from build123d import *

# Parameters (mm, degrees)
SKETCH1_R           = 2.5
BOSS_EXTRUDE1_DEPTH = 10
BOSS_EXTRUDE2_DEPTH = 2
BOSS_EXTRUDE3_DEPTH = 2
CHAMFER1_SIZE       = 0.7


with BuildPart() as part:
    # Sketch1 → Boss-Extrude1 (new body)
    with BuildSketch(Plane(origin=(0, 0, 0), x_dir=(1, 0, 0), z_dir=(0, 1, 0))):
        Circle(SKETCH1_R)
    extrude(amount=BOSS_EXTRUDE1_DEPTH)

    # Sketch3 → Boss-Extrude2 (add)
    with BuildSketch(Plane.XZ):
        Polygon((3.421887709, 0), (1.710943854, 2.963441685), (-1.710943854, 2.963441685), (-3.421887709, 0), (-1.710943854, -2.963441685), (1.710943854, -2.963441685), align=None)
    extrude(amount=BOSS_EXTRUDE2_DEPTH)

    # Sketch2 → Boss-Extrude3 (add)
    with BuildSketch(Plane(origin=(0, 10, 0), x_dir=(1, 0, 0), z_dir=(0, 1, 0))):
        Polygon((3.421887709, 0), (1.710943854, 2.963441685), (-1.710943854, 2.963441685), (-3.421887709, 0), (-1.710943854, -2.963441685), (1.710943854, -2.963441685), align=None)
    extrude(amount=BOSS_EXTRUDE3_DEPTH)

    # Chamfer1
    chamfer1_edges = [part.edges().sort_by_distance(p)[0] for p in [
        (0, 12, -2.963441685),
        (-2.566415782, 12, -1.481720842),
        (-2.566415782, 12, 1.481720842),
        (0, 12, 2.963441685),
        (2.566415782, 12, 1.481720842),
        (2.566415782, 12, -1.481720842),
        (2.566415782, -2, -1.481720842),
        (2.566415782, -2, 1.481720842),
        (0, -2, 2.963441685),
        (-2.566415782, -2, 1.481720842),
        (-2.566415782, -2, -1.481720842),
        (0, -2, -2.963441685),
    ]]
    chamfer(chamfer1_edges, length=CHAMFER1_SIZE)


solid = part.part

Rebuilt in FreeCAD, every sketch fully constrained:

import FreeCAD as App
import Part
import Sketcher
Q = App.Units.Quantity


def edges_at(feature, points):
    """Names of the edges that pass closest to the given points."""
    edges = feature.Shape.Edges
    near = lambda p: min(range(len(edges)), key=lambda i: edges[i].distToShape(Part.Vertex(*p))[0])
    return sorted({f"Edge{near(p) + 1}" for p in points})

doc = App.newDocument("Part")
params = doc.addObject("Spreadsheet::Sheet", "Params")
for row, (alias, value) in enumerate([
    ("sketch1_diameter", "5 mm"),
    ("pad1_length", "10 mm"),
    ("pad2_length", "2 mm"),
    ("pad3_length", "2 mm"),
    ("chamfer_size", "0.7 mm"),
], start=1):
    params.set(f"A{row}", alias)
    params.set(f"B{row}", "=" + value)
    params.setAlias(f"B{row}", alias)

body = doc.addObject("PartDesign::Body", "Body")

sketch1 = body.newObject("Sketcher::SketchObject", "Sketch")
sketch1.AttachmentSupport = (doc.getObject("XZ_Plane"), [""])
sketch1.MapMode = "FlatFace"
sketch1.addGeometry(Part.Circle(App.Vector(0, 0, 0), App.Vector(0, 0, 1), 2.5), False)
sketch1.addConstraint([
    Sketcher.Constraint("Coincident", 0, 3, -1, 1),
    Sketcher.Constraint("Diameter", 0, 5.0),
])
sketch1.setExpression("Constraints[1]", "Params.sketch1_diameter")
pad1 = body.newObject("PartDesign::Pad", "Pad")
pad1.Profile = sketch1
pad1.setExpression("Length", "Params.pad1_length")
pad1.Reversed = True

sketch2 = body.newObject("Sketcher::SketchObject", "Sketch001")
sketch2.AttachmentSupport = (doc.getObject("XZ_Plane"), [""])
sketch2.MapMode = "FlatFace"
sketch2.addGeometry([
    Part.LineSegment(App.Vector(3.421888, 0, 0), App.Vector(1.710944, 2.963442, 0)),
    Part.LineSegment(App.Vector(1.710944, 2.963442, 0), App.Vector(-1.710944, 2.963442, 0)),
    Part.LineSegment(App.Vector(-1.710944, 2.963442, 0), App.Vector(-3.421888, 0, 0)),
    Part.LineSegment(App.Vector(-3.421888, 0, 0), App.Vector(-1.710944, -2.963442, 0)),
    Part.LineSegment(App.Vector(-1.710944, -2.963442, 0), App.Vector(1.710944, -2.963442, 0)),
    Part.LineSegment(App.Vector(1.710944, -2.963442, 0), App.Vector(3.421888, 0, 0)),
], False)
sketch2.addConstraint([
    Sketcher.Constraint("Coincident", 0, 2, 1, 1),
    Sketcher.Constraint("Coincident", 1, 2, 2, 1),
    Sketcher.Constraint("Coincident", 2, 2, 3, 1),
    Sketcher.Constraint("Coincident", 3, 2, 4, 1),
    Sketcher.Constraint("Coincident", 4, 2, 5, 1),
    Sketcher.Constraint("Coincident", 5, 2, 0, 1),
    Sketcher.Constraint("Horizontal", 1),
    Sketcher.Constraint("Horizontal", 4),
    Sketcher.Constraint("Symmetric", 0, 2, 3, 2, -1, 1),
    Sketcher.Constraint("Symmetric", 2, 2, 5, 2, -1, 1),
    Sketcher.Constraint("PointOnObject", 2, 2, -1),
    Sketcher.Constraint("Parallel", 2, 5),
    Sketcher.Constraint("Vertical", 1, 2, 3, 2),
    Sketcher.Constraint("Angle", 0, Q("120 deg")),
    Sketcher.Constraint("DistanceX", 1, 2, 1, 1, 3.421888),
    Sketcher.Constraint("DistanceY", -1, 1, 0, 2, 2.963442),
])
pad2 = body.newObject("PartDesign::Pad", "Pad001")
pad2.Profile = sketch2
pad2.setExpression("Length", "Params.pad2_length")

sketch3 = body.newObject("Sketcher::SketchObject", "Sketch002")
sketch3.AttachmentSupport = (doc.getObject("XZ_Plane"), [""])
sketch3.MapMode = "FlatFace"
sketch3.AttachmentOffset = App.Placement(App.Vector(0, 0, -10), App.Rotation())
sketch3.addGeometry([
    Part.LineSegment(App.Vector(3.421888, 0, 0), App.Vector(1.710944, -2.963442, 0)),
    Part.LineSegment(App.Vector(1.710944, -2.963442, 0), App.Vector(-1.710944, -2.963442, 0)),
    Part.LineSegment(App.Vector(-1.710944, -2.963442, 0), App.Vector(-3.421888, 0, 0)),
    Part.LineSegment(App.Vector(-3.421888, 0, 0), App.Vector(-1.710944, 2.963442, 0)),
    Part.LineSegment(App.Vector(-1.710944, 2.963442, 0), App.Vector(1.710944, 2.963442, 0)),
    Part.LineSegment(App.Vector(1.710944, 2.963442, 0), App.Vector(3.421888, 0, 0)),
], False)
sketch3.addConstraint([
    Sketcher.Constraint("Coincident", 0, 2, 1, 1),
    Sketcher.Constraint("Coincident", 1, 2, 2, 1),
    Sketcher.Constraint("Coincident", 2, 2, 3, 1),
    Sketcher.Constraint("Coincident", 3, 2, 4, 1),
    Sketcher.Constraint("Coincident", 4, 2, 5, 1),
    Sketcher.Constraint("Coincident", 5, 2, 0, 1),
    Sketcher.Constraint("Horizontal", 1),
    Sketcher.Constraint("Horizontal", 4),
    Sketcher.Constraint("Symmetric", 0, 2, 3, 2, -1, 1),
    Sketcher.Constraint("Symmetric", 2, 2, 5, 2, -1, 1),
    Sketcher.Constraint("PointOnObject", 2, 2, -1),
    Sketcher.Constraint("Parallel", 2, 5),
    Sketcher.Constraint("Vertical", 1, 2, 3, 2),
    Sketcher.Constraint("Angle", 0, Q("-120 deg")),
    Sketcher.Constraint("DistanceX", 1, 2, 1, 1, 3.421888),
    Sketcher.Constraint("DistanceY", 0, 2, -1, 1, 2.963442),
])
pad3 = body.newObject("PartDesign::Pad", "Pad002")
pad3.Profile = sketch3
pad3.setExpression("Length", "Params.pad3_length")
pad3.Reversed = True
doc.recompute()

chamfer = body.newObject("PartDesign::Chamfer", "Chamfer")
chamfer.Base = (pad3, edges_at(pad3, [
    (0, 12, -2.963),
    (-2.566, 12, -1.482),
    (-2.566, 12, 1.482),
    (0, 12, 2.963),
    (2.566, 12, 1.482),
    (2.566, 12, -1.482),
    (2.566, -2, -1.482),
    (2.566, -2, 1.482),
    (0, -2, 2.963),
    (-2.566, -2, 1.482),
    (-2.566, -2, -1.482),
    (0, -2, -2.963),
]))
chamfer.setExpression("Size", "Params.chamfer_size")

doc.recompute()
